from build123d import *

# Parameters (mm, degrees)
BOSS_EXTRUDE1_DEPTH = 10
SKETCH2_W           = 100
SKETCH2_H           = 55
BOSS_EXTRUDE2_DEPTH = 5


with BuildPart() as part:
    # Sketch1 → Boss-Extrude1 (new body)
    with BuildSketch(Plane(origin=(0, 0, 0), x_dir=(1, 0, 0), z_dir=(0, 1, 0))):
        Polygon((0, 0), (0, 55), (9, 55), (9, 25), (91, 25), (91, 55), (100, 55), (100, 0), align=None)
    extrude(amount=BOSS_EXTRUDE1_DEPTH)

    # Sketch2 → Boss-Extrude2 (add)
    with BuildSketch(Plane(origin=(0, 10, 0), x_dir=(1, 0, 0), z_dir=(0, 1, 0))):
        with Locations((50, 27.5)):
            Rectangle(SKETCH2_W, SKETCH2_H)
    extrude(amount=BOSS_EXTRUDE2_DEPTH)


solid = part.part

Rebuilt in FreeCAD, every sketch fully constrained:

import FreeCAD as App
import Part
import Sketcher
from FreeCAD import Vector
Q = App.Units.Quantity

doc = App.newDocument("Part")
body = doc.addObject("PartDesign::Body", "Body")

sketch1 = body.newObject("Sketcher::SketchObject", "Sketch")
sketch1.AttachmentSupport = (doc.getObject("XZ_Plane"), [""])
sketch1.MapMode = "FlatFace"
sketch1.addGeometry([
    Part.LineSegment(Vector(0, -55, 0), Vector(0, 0, 0)),
    Part.LineSegment(Vector(0, 0, 0), Vector(100, 0, 0)),
    Part.LineSegment(Vector(100, 0, 0), Vector(100, -55, 0)),
    Part.LineSegment(Vector(100, -55, 0), Vector(91, -55, 0)),
    Part.LineSegment(Vector(91, -55, 0), Vector(91, -25, 0)),
    Part.LineSegment(Vector(91, -25, 0), Vector(9, -25, 0)),
    Part.LineSegment(Vector(9, -25, 0), Vector(9, -55, 0)),
    Part.LineSegment(Vector(9, -55, 0), Vector(0, -55, 0)),
], False)
sketch1.addConstraint([
    Sketcher.Constraint("Coincident", 0, 2, 1, 1),
    Sketcher.Constraint("Coincident", 1, 2, 2, 1),
    Sketcher.Constraint("Coincident", 2, 2, 3, 1),
    Sketcher.Constraint("Coincident", 3, 2, 4, 1),
    Sketcher.Constraint("Coincident", 4, 2, 5, 1),
    Sketcher.Constraint("Coincident", 5, 2, 6, 1),
    Sketcher.Constraint("Coincident", 6, 2, 7, 1),
    Sketcher.Constraint("Coincident", 7, 2, 0, 1),
    Sketcher.Constraint("Vertical", 0),
    Sketcher.Constraint("Horizontal", 1),
    Sketcher.Constraint("Vertical", 2),
    Sketcher.Constraint("Horizontal", 3),
    Sketcher.Constraint("Vertical", 4),
    Sketcher.Constraint("Horizontal", 5),
    Sketcher.Constraint("Vertical", 6),
    Sketcher.Constraint("Horizontal", 7),
    Sketcher.Constraint("Coincident", 0, 2, -1, 1),
    Sketcher.Constraint("Horizontal", 3, 2, 6, 2),
    Sketcher.Constraint("Equal", 3, 7),
    Sketcher.Constraint("DistanceX", 1, 1, 1, 2, Q("100 mm")),
    Sketcher.Constraint("DistanceX", 3, 2, 3, 1, Q("9 mm")),
    Sketcher.Constraint("DistanceY", 0, 1, 0, 2, Q("55 mm")),
    Sketcher.Constraint("DistanceY", 4, 1, 4, 2, Q("30 mm")),
])
pad1 = body.newObject("PartDesign::Pad", "Pad")
pad1.Profile = sketch1
pad1.Length = 10
pad1.Reversed = True

sketch2 = body.newObject("Sketcher::SketchObject", "Sketch001")
sketch2.AttachmentSupport = (doc.getObject("XZ_Plane"), [""])
sketch2.MapMode = "FlatFace"
sketch2.AttachmentOffset = App.Placement(Vector(0, 0, -10), App.Rotation())
sketch2.addGeometry([
    Part.LineSegment(Vector(0, -55, 0), Vector(0, 0, 0)),
    Part.LineSegment(Vector(0, 0, 0), Vector(100, 0, 0)),
    Part.LineSegment(Vector(100, 0, 0), Vector(100, -55, 0)),
    Part.LineSegment(Vector(100, -55, 0), Vector(0, -55, 0)),
], False)
sketch2.addConstraint([
    Sketcher.Constraint("Coincident", 0, 2, 1, 1),
    Sketcher.Constraint("Coincident", 1, 2, 2, 1),
    Sketcher.Constraint("Coincident", 2, 2, 3, 1),
    Sketcher.Constraint("Coincident", 3, 2, 0, 1),
    Sketcher.Constraint("Vertical", 0),
    Sketcher.Constraint("Horizontal", 1),
    Sketcher.Constraint("Vertical", 2),
    Sketcher.Constraint("Horizontal", 3),
    Sketcher.Constraint("Coincident", 0, 2, -1, 1),
    Sketcher.Constraint("DistanceX", 1, 1, 1, 2, Q("100 mm")),
    Sketcher.Constraint("DistanceY", 0, 1, 0, 2, Q("55 mm")),
])
pad2 = body.newObject("PartDesign::Pad", "Pad001")
pad2.Profile = sketch2
pad2.Length = 5
pad2.Reversed = True

doc.recompute()
